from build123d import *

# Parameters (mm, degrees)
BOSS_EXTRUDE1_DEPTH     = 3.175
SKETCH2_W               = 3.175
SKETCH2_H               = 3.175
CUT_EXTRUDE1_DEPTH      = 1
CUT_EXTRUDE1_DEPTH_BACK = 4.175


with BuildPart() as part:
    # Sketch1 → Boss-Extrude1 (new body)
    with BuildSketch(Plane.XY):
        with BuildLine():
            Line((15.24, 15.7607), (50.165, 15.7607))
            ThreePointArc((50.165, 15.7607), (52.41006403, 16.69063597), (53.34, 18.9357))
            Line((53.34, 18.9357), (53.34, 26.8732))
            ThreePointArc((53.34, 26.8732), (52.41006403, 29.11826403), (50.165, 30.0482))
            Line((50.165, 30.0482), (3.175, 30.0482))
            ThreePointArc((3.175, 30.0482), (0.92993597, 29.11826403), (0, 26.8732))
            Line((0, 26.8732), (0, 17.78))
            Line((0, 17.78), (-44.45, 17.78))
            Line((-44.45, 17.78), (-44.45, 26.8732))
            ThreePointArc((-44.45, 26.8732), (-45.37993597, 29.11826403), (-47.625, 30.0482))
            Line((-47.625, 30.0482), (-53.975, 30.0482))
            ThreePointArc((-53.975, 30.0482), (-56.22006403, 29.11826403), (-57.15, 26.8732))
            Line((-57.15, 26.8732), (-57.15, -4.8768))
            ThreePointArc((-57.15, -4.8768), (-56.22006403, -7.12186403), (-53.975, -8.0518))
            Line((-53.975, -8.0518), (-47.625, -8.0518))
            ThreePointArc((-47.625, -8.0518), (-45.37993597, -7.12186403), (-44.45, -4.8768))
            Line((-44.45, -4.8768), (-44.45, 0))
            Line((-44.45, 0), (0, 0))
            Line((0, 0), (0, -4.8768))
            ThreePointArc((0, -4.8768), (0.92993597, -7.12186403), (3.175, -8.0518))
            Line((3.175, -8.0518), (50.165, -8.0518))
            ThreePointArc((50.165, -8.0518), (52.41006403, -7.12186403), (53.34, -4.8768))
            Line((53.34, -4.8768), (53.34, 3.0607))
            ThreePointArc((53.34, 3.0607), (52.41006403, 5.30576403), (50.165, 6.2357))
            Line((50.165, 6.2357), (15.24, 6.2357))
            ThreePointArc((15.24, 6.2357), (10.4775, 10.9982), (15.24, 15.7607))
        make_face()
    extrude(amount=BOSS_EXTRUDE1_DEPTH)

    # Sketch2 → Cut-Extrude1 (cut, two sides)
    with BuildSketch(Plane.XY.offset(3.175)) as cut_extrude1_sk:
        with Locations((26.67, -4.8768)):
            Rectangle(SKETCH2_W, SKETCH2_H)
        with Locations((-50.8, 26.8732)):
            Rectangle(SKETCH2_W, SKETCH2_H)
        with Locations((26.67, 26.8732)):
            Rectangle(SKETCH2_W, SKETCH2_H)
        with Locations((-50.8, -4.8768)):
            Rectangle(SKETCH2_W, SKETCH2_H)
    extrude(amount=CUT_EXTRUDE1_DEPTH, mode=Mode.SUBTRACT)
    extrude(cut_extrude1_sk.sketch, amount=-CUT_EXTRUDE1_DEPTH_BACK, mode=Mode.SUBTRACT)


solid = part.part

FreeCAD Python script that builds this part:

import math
import FreeCAD as App
import Part
import Sketcher

V = App.Vector
Q = App.Units.Quantity


def add_polygon(sketch, points):
    """Adds a closed chain of lines whose ends are joined by coincident constraints."""
    first, n = sketch.GeometryCount, len(points)
    for a, b in zip(points, points[1:] + points[:1]):
        sketch.addGeometry(Part.LineSegment(App.Vector(*a, 0), App.Vector(*b, 0)), False)
    for i in range(n):
        sketch.addConstraint(Sketcher.Constraint("Coincident", first + i, 2, first + (i + 1) % n, 1))

doc = App.newDocument("Part")
params = doc.addObject("Spreadsheet::Sheet", "Params")
for row, (alias, value) in enumerate([
    ("sketch1_radius", "0.125 in"),
    ("sketch1_radius2", "0.1875 in"),
    ("sketch1_width", "1.85 in"),
    ("sketch1_width2", "0.25 in"),
    ("sketch1_height", "1.25 in"),
    ("pad1_length", "0.125 in"),
    ("sketch2_width", "0.125 in"),
], start=1):
    params.set(f"A{row}", alias)
    params.set(f"B{row}", "=" + value)
    params.setAlias(f"B{row}", alias)

body = doc.addObject("PartDesign::Body", "Body")

# Sketch on XY plane
sketch1 = doc.addObject("Sketcher::SketchObject", "Sketch")
body.addObject(sketch1)
sketch1.AttachmentSupport = (doc.XY_Plane, [""])
sketch1.MapMode = "FlatFace"
sketch1.addGeometry(Part.LineSegment(V(15.2, 15.8, 0), V(50.2, 15.8, 0)), False)
sketch1.addGeometry(Part.ArcOfCircle(Part.Circle(V(50.2, 18.9, 0), V(0, 0, 1), 3.2), math.radians(-90), math.radians(0)), False)
sketch1.addGeometry(Part.LineSegment(V(53.3, 18.9, 0), V(53.3, 26.9, 0)), False)
sketch1.addGeometry(Part.ArcOfCircle(Part.Circle(V(50.2, 26.9, 0), V(0, 0, 1), 3.2), math.radians(0), math.radians(90)), False)
sketch1.addGeometry(Part.LineSegment(V(50.2, 30, 0), V(3.2, 30, 0)), False)
sketch1.addGeometry(Part.ArcOfCircle(Part.Circle(V(3.2, 26.9, 0), V(0, 0, 1), 3.2), math.radians(90), math.radians(180)), False)
sketch1.addGeometry(Part.LineSegment(V(0, 26.9, 0), V(0, 17.8, 0)), False)
sketch1.addGeometry(Part.LineSegment(V(0, 17.8, 0), V(-44.5, 17.8, 0)), False)
sketch1.addGeometry(Part.LineSegment(V(-44.5, 17.8, 0), V(-44.5, 26.9, 0)), False)
sketch1.addGeometry(Part.ArcOfCircle(Part.Circle(V(-47.6, 26.9, 0), V(0, 0, 1), 3.2), math.radians(0), math.radians(90)), False)
sketch1.addGeometry(Part.LineSegment(V(-47.6, 30, 0), V(-54, 30, 0)), False)
sketch1.addGeometry(Part.ArcOfCircle(Part.Circle(V(-54, 26.9, 0), V(0, 0, 1), 3.2), math.radians(90), math.radians(180)), False)
sketch1.addGeometry(Part.LineSegment(V(-57.1, 26.9, 0), V(-57.1, -4.9, 0)), False)
sketch1.addGeometry(Part.ArcOfCircle(Part.Circle(V(-54, -4.9, 0), V(0, 0, 1), 3.2), math.radians(-180), math.radians(-90)), False)
sketch1.addGeometry(Part.LineSegment(V(-54, -8.1, 0), V(-47.6, -8.1, 0)), False)
sketch1.addGeometry(Part.ArcOfCircle(Part.Circle(V(-47.6, -4.9, 0), V(0, 0, 1), 3.2), math.radians(-90), math.radians(0)), False)
sketch1.addGeometry(Part.LineSegment(V(-44.5, -4.9, 0), V(-44.5, 0, 0)), False)
sketch1.addGeometry(Part.LineSegment(V(-44.5, 0, 0), V(0, 0, 0)), False)
sketch1.addGeometry(Part.LineSegment(V(0, 0, 0), V(0, -4.9, 0)), False)
sketch1.addGeometry(Part.ArcOfCircle(Part.Circle(V(3.2, -4.9, 0), V(0, 0, 1), 3.2), math.radians(-180), math.radians(-90)), False)
sketch1.addGeometry(Part.LineSegment(V(3.2, -8.1, 0), V(50.2, -8.1, 0)), False)
sketch1.addGeometry(Part.ArcOfCircle(Part.Circle(V(50.2, -4.9, 0), V(0, 0, 1), 3.2), math.radians(-90), math.radians(0)), False)
sketch1.addGeometry(Part.LineSegment(V(53.3, -4.9, 0), V(53.3, 3.1, 0)), False)
sketch1.addGeometry(Part.ArcOfCircle(Part.Circle(V(50.2, 3.1, 0), V(0, 0, 1), 3.2), math.radians(0), math.radians(90)), False)
sketch1.addGeometry(Part.LineSegment(V(50.2, 6.2, 0), V(15.2, 6.2, 0)), False)
sketch1.addGeometry(Part.ArcOfCircle(Part.Circle(V(15.2, 11, 0), V(0, 0, 1), 4.8), math.radians(90), math.radians(270)), False)
sketch1.addConstraint(Sketcher.Constraint("Tangent", 0, 2, 1, 1))
sketch1.addConstraint(Sketcher.Constraint("Tangent", 1, 2, 2, 1))
sketch1.addConstraint(Sketcher.Constraint("Tangent", 2, 2, 3, 1))
sketch1.addConstraint(Sketcher.Constraint("Tangent", 3, 2, 4, 1))
sketch1.addConstraint(Sketcher.Constraint("Tangent", 4, 2, 5, 1))
sketch1.addConstraint(Sketcher.Constraint("Tangent", 5, 2, 6, 1))
sketch1.addConstraint(Sketcher.Constraint("Coincident", 6, 2, 7, 1))
sketch1.addConstraint(Sketcher.Constraint("Coincident", 7, 2, 8, 1))
sketch1.addConstraint(Sketcher.Constraint("Tangent", 8, 2, 9, 1))
sketch1.addConstraint(Sketcher.Constraint("Tangent", 9, 2, 10, 1))
sketch1.addConstraint(Sketcher.Constraint("Tangent", 10, 2, 11, 1))
sketch1.addConstraint(Sketcher.Constraint("Tangent", 11, 2, 12, 1))
sketch1.addConstraint(Sketcher.Constraint("Tangent", 12, 2, 13, 1))
sketch1.addConstraint(Sketcher.Constraint("Tangent", 13, 2, 14, 1))
sketch1.addConstraint(Sketcher.Constraint("Tangent", 14, 2, 15, 1))
sketch1.addConstraint(Sketcher.Constraint("Tangent", 15, 2, 16, 1))
sketch1.addConstraint(Sketcher.Constraint("Coincident", 16, 2, 17, 1))
sketch1.addConstraint(Sketcher.Constraint("Coincident", 17, 2, 18, 1))
sketch1.addConstraint(Sketcher.Constraint("Tangent", 18, 2, 19, 1))
sketch1.addConstraint(Sketcher.Constraint("Tangent", 19, 2, 20, 1))
sketch1.addConstraint(Sketcher.Constraint("Tangent", 20, 2, 21, 1))
sketch1.addConstraint(Sketcher.Constraint("Tangent", 21, 2, 22, 1))
sketch1.addConstraint(Sketcher.Constraint("Tangent", 22, 2, 23, 1))
sketch1.addConstraint(Sketcher.Constraint("Tangent", 23, 2, 24, 1))
sketch1.addConstraint(Sketcher.Constraint("Tangent", 24, 2, 25, 2))
sketch1.addConstraint(Sketcher.Constraint("Tangent", 25, 1, 0, 1))
sketch1.addConstraint(Sketcher.Constraint("Horizontal", 0))
sketch1.addConstraint(Sketcher.Constraint("Vertical", 2))
sketch1.addConstraint(Sketcher.Constraint("Horizontal", 4))
sketch1.addConstraint(Sketcher.Constraint("Vertical", 6))
sketch1.addConstraint(Sketcher.Constraint("Horizontal", 7))
sketch1.addConstraint(Sketcher.Constraint("Vertical", 8))
sketch1.addConstraint(Sketcher.Constraint("Horizontal", 10))
sketch1.addConstraint(Sketcher.Constraint("Vertical", 12))
sketch1.addConstraint(Sketcher.Constraint("Horizontal", 14))
sketch1.addConstraint(Sketcher.Constraint("Vertical", 16))
sketch1.addConstraint(Sketcher.Constraint("Horizontal", 17))
sketch1.addConstraint(Sketcher.Constraint("Vertical", 18))
sketch1.addConstraint(Sketcher.Constraint("Horizontal", 20))
sketch1.addConstraint(Sketcher.Constraint("Vertical", 22))
sketch1.addConstraint(Sketcher.Constraint("Horizontal", 24))
sketch1.addConstraint(Sketcher.Constraint("Coincident", 17, 2, -1, 1))
sketch1.addConstraint(Sketcher.Constraint("Equal", 1, 3))
sketch1.addConstraint(Sketcher.Constraint("Equal", 3, 5))
sketch1.addConstraint(Sketcher.Constraint("Equal", 5, 9))
sketch1.addConstraint(Sketcher.Constraint("Equal", 9, 11))
sketch1.addConstraint(Sketcher.Constraint("Equal", 11, 13))
sketch1.addConstraint(Sketcher.Constraint("Equal", 13, 15))
sketch1.addConstraint(Sketcher.Constraint("Equal", 15, 19))
sketch1.addConstraint(Sketcher.Constraint("Equal", 19, 21))
sketch1.addConstraint(Sketcher.Constraint("Equal", 21, 23))
sketch1.addConstraint(Sketcher.Constraint("PointOnObject", 5, 2, -2))
sketch1.addConstraint(Sketcher.Constraint("Horizontal", 5, 3, 9, 3))
sketch1.addConstraint(Sketcher.Constraint("Horizontal", 15, 3, 19, 3))
sketch1.addConstraint(Sketcher.Constraint("Vertical", 9, 3, 15, 3))
sketch1.addConstraint(Sketcher.Constraint("Vertical", 3, 3, 21, 3))
sketch1.addConstraint(Sketcher.Constraint("Equal", 2, 22))
sketch1.addConstraint(Sketcher.Constraint("Radius", 1, Q("0.125 in")))
sketch1.addConstraint(Sketcher.Constraint("Radius", 25, Q("0.1875 in")))
sketch1.addConstraint(Sketcher.Constraint("DistanceX", 9, 3, 5, 3, Q("2 in")))
sketch1.addConstraint(Sketcher.Constraint("DistanceX", 4, 2, 4, 1, Q("1.85 in")))
sketch1.addConstraint(Sketcher.Constraint("DistanceX", 10, 2, 10, 1, Q("0.25 in")))
sketch1.addConstraint(Sketcher.Constraint("DistanceY", 12, 2, 12, 1, Q("1.25 in")))
sketch1.addConstraint(Sketcher.Constraint("DistanceX", -1, 1, 25, 3, Q("0.6 in")))
sketch1.addConstraint(Sketcher.Constraint("DistanceY", -1, 1, 6, 2, Q("0.7 in")))
sketch1.addConstraint(Sketcher.Constraint("DistanceY", 6, 2, 6, 1, Q("0.358 in")))
sketch1.setExpression("Constraints[57]", "Params.sketch1_radius")
sketch1.setExpression("Constraints[58]", "Params.sketch1_radius2")
sketch1.setExpression("Constraints[60]", "Params.sketch1_width")
sketch1.setExpression("Constraints[61]", "Params.sketch1_width2")
sketch1.setExpression("Constraints[62]", "Params.sketch1_height")
pad1 = doc.addObject("PartDesign::Pad", "Pad")
body.addObject(pad1)
pad1.Profile = sketch1
pad1.setExpression("Length", "Params.pad1_length")

# Sketch on XY plane
sketch2 = doc.addObject("Sketcher::SketchObject", "Sketch001")
body.addObject(sketch2)
sketch2.AttachmentSupport = (doc.XY_Plane, [""])
sketch2.MapMode = "FlatFace"
sketch2.AttachmentOffset = App.Placement(V(0, 0, 0.125 * 25.4), App.Rotation())
add_polygon(sketch2, [(25.1, -3.3), (25.1, -6.5), (28.3, -6.5), (28.3, -3.3)])  # lines 0-3
add_polygon(sketch2, [(-52.4, 28.5), (-52.4, 25.3), (-49.2, 25.3), (-49.2, 28.5)])  # lines 4-7
add_polygon(sketch2, [(25.1, 28.5), (25.1, 25.3), (28.3, 25.3), (28.3, 28.5)])  # lines 8-11
add_polygon(sketch2, [(-52.4, -3.3), (-52.4, -6.5), (-49.2, -6.5), (-49.2, -3.3)])  # lines 12-15
sketch2.addConstraint(Sketcher.Constraint("Vertical", 0))
sketch2.addConstraint(Sketcher.Constraint("Horizontal", 1))
sketch2.addConstraint(Sketcher.Constraint("Vertical", 2))
sketch2.addConstraint(Sketcher.Constraint("Horizontal", 3))
sketch2.addConstraint(Sketcher.Constraint("Vertical", 4))
sketch2.addConstraint(Sketcher.Constraint("Horizontal", 5))
sketch2.addConstraint(Sketcher.Constraint("Vertical", 6))
sketch2.addConstraint(Sketcher.Constraint("Horizontal", 7))
sketch2.addConstraint(Sketcher.Constraint("Vertical", 8))
sketch2.addConstraint(Sketcher.Constraint("Horizontal", 9))
sketch2.addConstraint(Sketcher.Constraint("Vertical", 10))
sketch2.addConstraint(Sketcher.Constraint("Horizontal", 11))
sketch2.addConstraint(Sketcher.Constraint("Vertical", 12))
sketch2.addConstraint(Sketcher.Constraint("Horizontal", 13))
sketch2.addConstraint(Sketcher.Constraint("Vertical", 14))
sketch2.addConstraint(Sketcher.Constraint("Horizontal", 15))
sketch2.addConstraint(Sketcher.Constraint("Horizontal", 5, 2, 8, 2))
sketch2.addConstraint(Sketcher.Constraint("Horizontal", 7, 2, 10, 2))
sketch2.addConstraint(Sketcher.Constraint("Horizontal", 1, 2, 12, 2))
sketch2.addConstraint(Sketcher.Constraint("Horizontal", 3, 2, 14, 2))
sketch2.addConstraint(Sketcher.Constraint("Vertical", 3, 2, 8, 2))
sketch2.addConstraint(Sketcher.Constraint("Vertical", 2, 2, 9, 2))
sketch2.addConstraint(Sketcher.Constraint("Vertical", 7, 2, 12, 2))
sketch2.addConstraint(Sketcher.Constraint("Vertical", 6, 2, 13, 2))
sketch2.addConstraint(Sketcher.Constraint("Equal", 3, 5))
sketch2.addConstraint(Sketcher.Constraint("Equal", 15, 0))
sketch2.addConstraint(Sketcher.Constraint("Equal", 2, 4))
sketch2.addConstraint(Sketcher.Constraint("DistanceX", 1, 1, 1, 2, Q("0.125 in")))
sketch2.addConstraint(Sketcher.Constraint("DistanceX", 4, 2, 3, 2, Q("3.05 in")))
sketch2.addConstraint(Sketcher.Constraint("DistanceY", 0, 2, 4, 2, Q("1.25 in")))
sketch2.addConstraint(Sketcher.Constraint("DistanceX", 4, 2, -1, 1, Q("2.0625 in")))
sketch2.addConstraint(Sketcher.Constraint("DistanceY", 0, 2, -1, 1, Q("0.2545 in")))
sketch2.setExpression("Constraints[43]", "Params.sketch2_width")
pocket1 = doc.addObject("PartDesign::Pocket", "Pocket")
body.addObject(pocket1)
pocket1.Profile = sketch2
pocket1.Type = "ThroughAll"
pocket1.Midplane = True

doc.recompute()
